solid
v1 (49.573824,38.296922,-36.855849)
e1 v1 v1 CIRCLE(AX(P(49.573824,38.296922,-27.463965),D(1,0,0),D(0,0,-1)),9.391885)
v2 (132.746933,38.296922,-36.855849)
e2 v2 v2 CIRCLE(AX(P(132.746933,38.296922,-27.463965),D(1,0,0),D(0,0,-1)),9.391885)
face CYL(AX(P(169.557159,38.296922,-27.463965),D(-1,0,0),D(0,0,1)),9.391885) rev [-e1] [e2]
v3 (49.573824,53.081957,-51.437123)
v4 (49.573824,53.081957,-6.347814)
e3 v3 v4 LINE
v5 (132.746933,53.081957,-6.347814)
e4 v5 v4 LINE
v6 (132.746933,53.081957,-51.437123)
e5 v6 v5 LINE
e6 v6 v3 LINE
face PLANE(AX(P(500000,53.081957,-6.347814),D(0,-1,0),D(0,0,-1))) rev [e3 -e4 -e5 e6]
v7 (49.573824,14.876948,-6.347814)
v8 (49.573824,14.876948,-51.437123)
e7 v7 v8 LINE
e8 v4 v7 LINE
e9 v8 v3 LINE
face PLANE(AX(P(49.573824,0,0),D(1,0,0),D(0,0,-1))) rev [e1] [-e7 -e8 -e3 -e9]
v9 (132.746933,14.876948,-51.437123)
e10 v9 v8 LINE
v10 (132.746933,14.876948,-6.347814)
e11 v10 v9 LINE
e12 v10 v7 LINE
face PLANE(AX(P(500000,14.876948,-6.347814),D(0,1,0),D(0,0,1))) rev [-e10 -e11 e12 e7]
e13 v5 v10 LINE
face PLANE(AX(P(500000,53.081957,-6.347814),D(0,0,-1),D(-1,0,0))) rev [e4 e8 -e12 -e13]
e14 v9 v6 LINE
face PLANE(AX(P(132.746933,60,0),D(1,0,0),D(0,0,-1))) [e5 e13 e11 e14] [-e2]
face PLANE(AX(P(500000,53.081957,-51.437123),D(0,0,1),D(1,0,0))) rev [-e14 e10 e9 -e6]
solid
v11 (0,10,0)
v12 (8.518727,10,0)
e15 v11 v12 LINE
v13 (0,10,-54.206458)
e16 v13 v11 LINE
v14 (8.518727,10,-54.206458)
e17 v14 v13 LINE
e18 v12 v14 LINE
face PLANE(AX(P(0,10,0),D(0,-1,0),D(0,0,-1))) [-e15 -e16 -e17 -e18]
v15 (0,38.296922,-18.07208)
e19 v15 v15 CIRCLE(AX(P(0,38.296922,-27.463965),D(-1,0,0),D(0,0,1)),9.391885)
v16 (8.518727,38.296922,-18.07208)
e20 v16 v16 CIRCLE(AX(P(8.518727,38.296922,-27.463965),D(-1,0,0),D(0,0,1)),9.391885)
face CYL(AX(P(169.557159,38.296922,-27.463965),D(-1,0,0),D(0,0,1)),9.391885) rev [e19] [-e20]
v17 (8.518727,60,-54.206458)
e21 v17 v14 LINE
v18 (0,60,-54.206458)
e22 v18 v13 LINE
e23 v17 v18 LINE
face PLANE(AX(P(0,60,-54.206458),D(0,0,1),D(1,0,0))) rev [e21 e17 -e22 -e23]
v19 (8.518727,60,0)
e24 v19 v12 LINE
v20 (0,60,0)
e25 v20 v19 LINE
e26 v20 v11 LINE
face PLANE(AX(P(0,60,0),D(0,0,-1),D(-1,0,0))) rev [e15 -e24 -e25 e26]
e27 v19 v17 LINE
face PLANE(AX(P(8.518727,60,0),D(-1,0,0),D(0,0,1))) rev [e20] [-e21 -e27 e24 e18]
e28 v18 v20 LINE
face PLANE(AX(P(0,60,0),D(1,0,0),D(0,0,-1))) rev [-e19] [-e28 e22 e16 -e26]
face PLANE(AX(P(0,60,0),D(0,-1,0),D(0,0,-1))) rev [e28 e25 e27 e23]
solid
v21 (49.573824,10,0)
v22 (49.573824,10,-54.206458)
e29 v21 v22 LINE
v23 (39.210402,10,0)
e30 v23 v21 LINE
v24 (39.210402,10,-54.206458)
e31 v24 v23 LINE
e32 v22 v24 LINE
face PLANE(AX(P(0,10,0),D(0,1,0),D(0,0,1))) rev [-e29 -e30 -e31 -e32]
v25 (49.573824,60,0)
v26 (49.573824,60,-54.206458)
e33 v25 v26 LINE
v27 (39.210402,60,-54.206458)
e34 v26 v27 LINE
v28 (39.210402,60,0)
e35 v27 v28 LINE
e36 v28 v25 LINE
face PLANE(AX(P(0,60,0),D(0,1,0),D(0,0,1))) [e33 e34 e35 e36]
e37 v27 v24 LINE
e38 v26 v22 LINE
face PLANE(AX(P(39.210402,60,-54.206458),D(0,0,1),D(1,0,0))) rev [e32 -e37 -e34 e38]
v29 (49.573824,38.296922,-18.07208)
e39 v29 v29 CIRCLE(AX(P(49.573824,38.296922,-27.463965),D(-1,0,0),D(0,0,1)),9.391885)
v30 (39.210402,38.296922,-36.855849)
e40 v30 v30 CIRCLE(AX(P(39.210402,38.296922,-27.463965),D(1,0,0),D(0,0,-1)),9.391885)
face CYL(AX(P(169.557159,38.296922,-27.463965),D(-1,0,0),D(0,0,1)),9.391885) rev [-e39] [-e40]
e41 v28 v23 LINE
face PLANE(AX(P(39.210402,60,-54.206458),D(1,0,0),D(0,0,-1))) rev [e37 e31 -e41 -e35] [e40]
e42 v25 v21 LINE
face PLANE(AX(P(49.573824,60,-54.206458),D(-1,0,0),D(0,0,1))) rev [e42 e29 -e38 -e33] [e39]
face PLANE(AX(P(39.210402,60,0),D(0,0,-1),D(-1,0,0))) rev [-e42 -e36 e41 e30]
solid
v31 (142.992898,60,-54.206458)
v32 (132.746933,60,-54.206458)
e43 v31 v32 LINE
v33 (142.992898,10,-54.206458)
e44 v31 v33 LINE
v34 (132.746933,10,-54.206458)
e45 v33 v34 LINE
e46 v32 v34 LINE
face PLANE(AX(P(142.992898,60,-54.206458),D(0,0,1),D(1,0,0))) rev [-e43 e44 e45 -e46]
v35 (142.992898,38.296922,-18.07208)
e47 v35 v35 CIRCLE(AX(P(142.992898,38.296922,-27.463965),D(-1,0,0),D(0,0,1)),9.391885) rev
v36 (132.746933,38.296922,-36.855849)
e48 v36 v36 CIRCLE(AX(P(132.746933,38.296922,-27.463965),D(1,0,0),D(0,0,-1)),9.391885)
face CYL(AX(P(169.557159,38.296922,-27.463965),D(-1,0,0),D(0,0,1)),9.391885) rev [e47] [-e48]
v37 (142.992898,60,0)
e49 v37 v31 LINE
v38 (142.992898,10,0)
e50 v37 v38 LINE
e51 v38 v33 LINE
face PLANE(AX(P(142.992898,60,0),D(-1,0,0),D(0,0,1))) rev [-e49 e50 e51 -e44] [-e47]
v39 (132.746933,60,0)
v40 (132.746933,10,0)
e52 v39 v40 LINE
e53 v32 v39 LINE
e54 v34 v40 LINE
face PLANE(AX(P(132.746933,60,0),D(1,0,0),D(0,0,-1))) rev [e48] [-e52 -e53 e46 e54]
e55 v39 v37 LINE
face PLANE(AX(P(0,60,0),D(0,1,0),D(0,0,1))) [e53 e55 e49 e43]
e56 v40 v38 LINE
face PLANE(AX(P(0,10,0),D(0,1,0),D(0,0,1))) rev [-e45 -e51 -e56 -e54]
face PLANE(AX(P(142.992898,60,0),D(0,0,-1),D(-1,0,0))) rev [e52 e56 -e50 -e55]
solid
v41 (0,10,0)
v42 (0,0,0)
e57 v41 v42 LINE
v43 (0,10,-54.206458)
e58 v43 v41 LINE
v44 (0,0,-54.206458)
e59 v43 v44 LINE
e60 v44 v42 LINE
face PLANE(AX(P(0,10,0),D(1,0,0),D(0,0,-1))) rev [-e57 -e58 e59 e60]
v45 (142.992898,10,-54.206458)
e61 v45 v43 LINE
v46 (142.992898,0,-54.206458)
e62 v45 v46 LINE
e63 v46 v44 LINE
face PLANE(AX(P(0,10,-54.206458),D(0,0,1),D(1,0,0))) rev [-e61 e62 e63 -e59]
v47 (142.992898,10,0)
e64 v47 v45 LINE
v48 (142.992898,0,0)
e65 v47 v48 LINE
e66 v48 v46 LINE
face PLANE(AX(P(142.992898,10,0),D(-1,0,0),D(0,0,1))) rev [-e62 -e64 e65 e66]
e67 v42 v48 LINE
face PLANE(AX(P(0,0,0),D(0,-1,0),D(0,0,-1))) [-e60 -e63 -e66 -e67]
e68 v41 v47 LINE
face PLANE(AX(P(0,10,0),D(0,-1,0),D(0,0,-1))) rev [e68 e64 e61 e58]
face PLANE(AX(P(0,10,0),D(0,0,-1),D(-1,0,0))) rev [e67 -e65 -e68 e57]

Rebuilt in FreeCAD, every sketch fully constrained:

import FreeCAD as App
import Part
import Sketcher
Q = App.Units.Quantity

doc = App.newDocument("Part")
params = doc.addObject("Spreadsheet::Sheet", "Params")
for row, (alias, value) in enumerate([
    ("pad1_length", "10 mm"),
    ("pad2_length", "50 mm"),
    ("pad3_length", "50 mm"),
    ("pad4_length", "50 mm"),
    ("pad5_length", "83.173109 mm"),
    ("pad6_length", "142.992898 mm"),
], start=1):
    params.set(f"A{row}", alias)
    params.set(f"B{row}", "=" + value)
    params.setAlias(f"B{row}", alias)

body = doc.addObject("PartDesign::Body", "Body")

# Sketch on XZ plane
sketch1 = body.newObject("Sketcher::SketchObject", "Sketch")
sketch1.AttachmentSupport = (doc.getObject("XZ_Plane"), [""])
sketch1.MapMode = "FlatFace"
sketch1.addGeometry([
    Part.LineSegment(App.Vector(0, -54.206458, 0), App.Vector(0, 0, 0)),
    Part.LineSegment(App.Vector(0, 0, 0), App.Vector(142.992898, 0, 0)),
    Part.LineSegment(App.Vector(142.992898, 0, 0), App.Vector(142.992898, -54.206458, 0)),
    Part.LineSegment(App.Vector(142.992898, -54.206458, 0), App.Vector(0, -54.206458, 0)),
], False)
sketch1.addConstraint([
    Sketcher.Constraint("Coincident", 0, 2, 1, 1),
    Sketcher.Constraint("Coincident", 1, 2, 2, 1),
    Sketcher.Constraint("Coincident", 2, 2, 3, 1),
    Sketcher.Constraint("Coincident", 3, 2, 0, 1),
    Sketcher.Constraint("Vertical", 0),
    Sketcher.Constraint("Horizontal", 1),
    Sketcher.Constraint("Vertical", 2),
    Sketcher.Constraint("Horizontal", 3),
    Sketcher.Constraint("Coincident", 0, 2, -1, 1),
    Sketcher.Constraint("DistanceX", 1, 1, 1, 2, Q("142.992898 mm")),
    Sketcher.Constraint("DistanceY", 0, 1, 0, 2, Q("54.206458 mm")),
])
pad1 = body.newObject("PartDesign::Pad", "Pad")
pad1.Profile = sketch1
pad1.setExpression("Length", "Params.pad1_length")
pad1.Reversed = True
body2 = doc.addObject("PartDesign::Body", "Body001")

# Sketch on XZ plane
sketch2 = body2.newObject("Sketcher::SketchObject", "Sketch001")
sketch2.AttachmentSupport = (doc.getObject("XZ_Plane001"), [""])
sketch2.MapMode = "FlatFace"
sketch2.AttachmentOffset = App.Placement(App.Vector(0, 0, -10), App.Rotation())
sketch2.addGeometry([
    Part.LineSegment(App.Vector(0, -54.206458, 0), App.Vector(0, 0, 0)),
    Part.LineSegment(App.Vector(0, 0, 0), App.Vector(8.518727, 0, 0)),
    Part.LineSegment(App.Vector(8.518727, 0, 0), App.Vector(8.518727, -54.206458, 0)),
    Part.LineSegment(App.Vector(8.518727, -54.206458, 0), App.Vector(0, -54.206458, 0)),
], False)
sketch2.addConstraint([
    Sketcher.Constraint("Coincident", 0, 2, 1, 1),
    Sketcher.Constraint("Coincident", 1, 2, 2, 1),
    Sketcher.Constraint("Coincident", 2, 2, 3, 1),
    Sketcher.Constraint("Coincident", 3, 2, 0, 1),
    Sketcher.Constraint("Vertical", 0),
    Sketcher.Constraint("Horizontal", 1),
    Sketcher.Constraint("Vertical", 2),
    Sketcher.Constraint("Horizontal", 3),
    Sketcher.Constraint("Coincident", 0, 2, -1, 1),
    Sketcher.Constraint("DistanceY", 0, 1, 0, 2, Q("54.206458 mm")),
    Sketcher.Constraint("DistanceX", 1, 1, 1, 2, Q("8.518727 mm")),
])
pad2 = body2.newObject("PartDesign::Pad", "Pad001")
pad2.Profile = sketch2
pad2.setExpression("Length", "Params.pad2_length")
pad2.Reversed = True
body3 = doc.addObject("PartDesign::Body", "Body002")

# Sketch on XZ plane
sketch3 = body3.newObject("Sketcher::SketchObject", "Sketch002")
sketch3.AttachmentSupport = (doc.getObject("XZ_Plane002"), [""])
sketch3.MapMode = "FlatFace"
sketch3.AttachmentOffset = App.Placement(App.Vector(0, 0, -10), App.Rotation())
sketch3.addGeometry([
    Part.LineSegment(App.Vector(132.746933, -54.206458, 0), App.Vector(132.746933, 0, 0)),
    Part.LineSegment(App.Vector(132.746933, 0, 0), App.Vector(142.992898, 0, 0)),
    Part.LineSegment(App.Vector(142.992898, 0, 0), App.Vector(142.992898, -54.206458, 0)),
    Part.LineSegment(App.Vector(142.992898, -54.206458, 0), App.Vector(132.746933, -54.206458, 0)),
], False)
sketch3.addConstraint([
    Sketcher.Constraint("Coincident", 0, 2, 1, 1),
    Sketcher.Constraint("Coincident", 1, 2, 2, 1),
    Sketcher.Constraint("Coincident", 2, 2, 3, 1),
    Sketcher.Constraint("Coincident", 3, 2, 0, 1),
    Sketcher.Constraint("Vertical", 0),
    Sketcher.Constraint("Horizontal", 1),
    Sketcher.Constraint("Vertical", 2),
    Sketcher.Constraint("Horizontal", 3),
    Sketcher.Constraint("PointOnObject", 0, 2, -1),
    Sketcher.Constraint("DistanceY", 0, 1, 0, 2, Q("54.206458 mm")),
    Sketcher.Constraint("DistanceX", -1, 1, 1, 2, Q("142.992898 mm")),
    Sketcher.Constraint("DistanceX", 1, 1, 1, 2, Q("10.245965 mm")),
])
pad3 = body3.newObject("PartDesign::Pad", "Pad002")
pad3.Profile = sketch3
pad3.setExpression("Length", "Params.pad3_length")
pad3.Reversed = True
body4 = doc.addObject("PartDesign::Body", "Body003")

# Sketch on XZ plane
sketch4 = body4.newObject("Sketcher::SketchObject", "Sketch003")
sketch4.AttachmentSupport = (doc.getObject("XZ_Plane003"), [""])
sketch4.MapMode = "FlatFace"
sketch4.AttachmentOffset = App.Placement(App.Vector(0, 0, -10), App.Rotation())
sketch4.addGeometry([
    Part.LineSegment(App.Vector(39.210402, -54.206458, 0), App.Vector(39.210402, 0, 0)),
    Part.LineSegment(App.Vector(39.210402, 0, 0), App.Vector(49.573824, 0, 0)),
    Part.LineSegment(App.Vector(49.573824, 0, 0), App.Vector(49.573824, -54.206458, 0)),
    Part.LineSegment(App.Vector(49.573824, -54.206458, 0), App.Vector(39.210402, -54.206458, 0)),
], False)
sketch4.addConstraint([
    Sketcher.Constraint("Coincident", 0, 2, 1, 1),
    Sketcher.Constraint("Coincident", 1, 2, 2, 1),
    Sketcher.Constraint("Coincident", 2, 2, 3, 1),
    Sketcher.Constraint("Coincident", 3, 2, 0, 1),
    Sketcher.Constraint("Vertical", 0),
    Sketcher.Constraint("Horizontal", 1),
    Sketcher.Constraint("Vertical", 2),
    Sketcher.Constraint("Horizontal", 3),
    Sketcher.Constraint("PointOnObject", 0, 2, -1),
    Sketcher.Constraint("DistanceY", 0, 1, 0, 2, Q("54.206458 mm")),
    Sketcher.Constraint("DistanceX", -1, 1, 0, 2, Q("39.210402 mm")),
    Sketcher.Constraint("DistanceX", 1, 1, 1, 2, Q("10.363423 mm")),
])
pad4 = body4.newObject("PartDesign::Pad", "Pad003")
pad4.Profile = sketch4
pad4.setExpression("Length", "Params.pad4_length")
pad4.Reversed = True
body5 = doc.addObject("PartDesign::Body", "Body004")

# Sketch on YZ plane
sketch5 = body5.newObject("Sketcher::SketchObject", "Sketch004")
sketch5.AttachmentSupport = (doc.getObject("YZ_Plane004"), [""])
sketch5.MapMode = "FlatFace"
sketch5.AttachmentOffset = App.Placement(App.Vector(0, 0, 49.573824), App.Rotation())
sketch5.addGeometry([
    Part.LineSegment(App.Vector(53.081957, -6.347814, 0), App.Vector(14.876948, -6.347814, 0)),
    Part.LineSegment(App.Vector(14.876948, -6.347814, 0), App.Vector(14.876948, -51.437123, 0)),
    Part.LineSegment(App.Vector(14.876948, -51.437123, 0), App.Vector(53.081957, -51.437123, 0)),
    Part.LineSegment(App.Vector(53.081957, -51.437123, 0), App.Vector(53.081957, -6.347814, 0)),
], False)
sketch5.addConstraint([
    Sketcher.Constraint("Coincident", 0, 2, 1, 1),
    Sketcher.Constraint("Coincident", 1, 2, 2, 1),
    Sketcher.Constraint("Coincident", 2, 2, 3, 1),
    Sketcher.Constraint("Coincident", 3, 2, 0, 1),
    Sketcher.Constraint("Horizontal", 0),
    Sketcher.Constraint("Vertical", 1),
    Sketcher.Constraint("Horizontal", 2),
    Sketcher.Constraint("Vertical", 3),
    Sketcher.Constraint("DistanceX", 0, 2, 0, 1, Q("38.205008 mm")),
    Sketcher.Constraint("DistanceY", 1, 2, 1, 1, Q("45.089309 mm")),
    Sketcher.Constraint("DistanceX", -1, 1, 0, 2, Q("14.876948 mm")),
    Sketcher.Constraint("DistanceY", 0, 2, -1, 1, Q("6.347814 mm")),
])
pad5 = body5.newObject("PartDesign::Pad", "Pad004")
pad5.Profile = sketch5
pad5.setExpression("Length", "Params.pad5_length")
body6 = doc.addObject("PartDesign::Body", "Body005")

# Sketch on YZ plane
sketch6 = body6.newObject("Sketcher::SketchObject", "Sketch005")
sketch6.AttachmentSupport = (doc.getObject("YZ_Plane005"), [""])
sketch6.MapMode = "FlatFace"
sketch6.addGeometry(Part.Circle(App.Vector(38.296922, -27.463965, 0), App.Vector(0, 0, 1), 9.391885), False)
sketch6.addConstraint([
    Sketcher.Constraint("Diameter", 0, Q("18.783769 mm")),
    Sketcher.Constraint("DistanceX", -1, 1, 0, 3, Q("38.296922 mm")),
    Sketcher.Constraint("DistanceY", 0, 3, -1, 1, Q("27.463965 mm")),
])
pad6 = body6.newObject("PartDesign::Pad", "Pad005")
pad6.Profile = sketch6
pad6.setExpression("Length", "Params.pad6_length")
doc.recompute()

body7 = doc.addObject("PartDesign::Body", "Body006")
body7.BaseFeature = body6
boolean = body2.newObject("PartDesign::Boolean", "Boolean")
boolean.Type = "Cut"
boolean.addObjects([body7])
doc.recompute()

body8 = doc.addObject("PartDesign::Body", "Body007")
body8.BaseFeature = body6
boolean2 = body3.newObject("PartDesign::Boolean", "Boolean001")
boolean2.Type = "Cut"
boolean2.addObjects([body8])
doc.recompute()

body9 = doc.addObject("PartDesign::Body", "Body008")
body9.BaseFeature = body6
boolean3 = body4.newObject("PartDesign::Boolean", "Boolean002")
boolean3.Type = "Cut"
boolean3.addObjects([body9])
doc.recompute()

boolean4 = body5.newObject("PartDesign::Boolean", "Boolean003")
boolean4.Type = "Cut"
boolean4.addObjects([body6])

doc.recompute()
